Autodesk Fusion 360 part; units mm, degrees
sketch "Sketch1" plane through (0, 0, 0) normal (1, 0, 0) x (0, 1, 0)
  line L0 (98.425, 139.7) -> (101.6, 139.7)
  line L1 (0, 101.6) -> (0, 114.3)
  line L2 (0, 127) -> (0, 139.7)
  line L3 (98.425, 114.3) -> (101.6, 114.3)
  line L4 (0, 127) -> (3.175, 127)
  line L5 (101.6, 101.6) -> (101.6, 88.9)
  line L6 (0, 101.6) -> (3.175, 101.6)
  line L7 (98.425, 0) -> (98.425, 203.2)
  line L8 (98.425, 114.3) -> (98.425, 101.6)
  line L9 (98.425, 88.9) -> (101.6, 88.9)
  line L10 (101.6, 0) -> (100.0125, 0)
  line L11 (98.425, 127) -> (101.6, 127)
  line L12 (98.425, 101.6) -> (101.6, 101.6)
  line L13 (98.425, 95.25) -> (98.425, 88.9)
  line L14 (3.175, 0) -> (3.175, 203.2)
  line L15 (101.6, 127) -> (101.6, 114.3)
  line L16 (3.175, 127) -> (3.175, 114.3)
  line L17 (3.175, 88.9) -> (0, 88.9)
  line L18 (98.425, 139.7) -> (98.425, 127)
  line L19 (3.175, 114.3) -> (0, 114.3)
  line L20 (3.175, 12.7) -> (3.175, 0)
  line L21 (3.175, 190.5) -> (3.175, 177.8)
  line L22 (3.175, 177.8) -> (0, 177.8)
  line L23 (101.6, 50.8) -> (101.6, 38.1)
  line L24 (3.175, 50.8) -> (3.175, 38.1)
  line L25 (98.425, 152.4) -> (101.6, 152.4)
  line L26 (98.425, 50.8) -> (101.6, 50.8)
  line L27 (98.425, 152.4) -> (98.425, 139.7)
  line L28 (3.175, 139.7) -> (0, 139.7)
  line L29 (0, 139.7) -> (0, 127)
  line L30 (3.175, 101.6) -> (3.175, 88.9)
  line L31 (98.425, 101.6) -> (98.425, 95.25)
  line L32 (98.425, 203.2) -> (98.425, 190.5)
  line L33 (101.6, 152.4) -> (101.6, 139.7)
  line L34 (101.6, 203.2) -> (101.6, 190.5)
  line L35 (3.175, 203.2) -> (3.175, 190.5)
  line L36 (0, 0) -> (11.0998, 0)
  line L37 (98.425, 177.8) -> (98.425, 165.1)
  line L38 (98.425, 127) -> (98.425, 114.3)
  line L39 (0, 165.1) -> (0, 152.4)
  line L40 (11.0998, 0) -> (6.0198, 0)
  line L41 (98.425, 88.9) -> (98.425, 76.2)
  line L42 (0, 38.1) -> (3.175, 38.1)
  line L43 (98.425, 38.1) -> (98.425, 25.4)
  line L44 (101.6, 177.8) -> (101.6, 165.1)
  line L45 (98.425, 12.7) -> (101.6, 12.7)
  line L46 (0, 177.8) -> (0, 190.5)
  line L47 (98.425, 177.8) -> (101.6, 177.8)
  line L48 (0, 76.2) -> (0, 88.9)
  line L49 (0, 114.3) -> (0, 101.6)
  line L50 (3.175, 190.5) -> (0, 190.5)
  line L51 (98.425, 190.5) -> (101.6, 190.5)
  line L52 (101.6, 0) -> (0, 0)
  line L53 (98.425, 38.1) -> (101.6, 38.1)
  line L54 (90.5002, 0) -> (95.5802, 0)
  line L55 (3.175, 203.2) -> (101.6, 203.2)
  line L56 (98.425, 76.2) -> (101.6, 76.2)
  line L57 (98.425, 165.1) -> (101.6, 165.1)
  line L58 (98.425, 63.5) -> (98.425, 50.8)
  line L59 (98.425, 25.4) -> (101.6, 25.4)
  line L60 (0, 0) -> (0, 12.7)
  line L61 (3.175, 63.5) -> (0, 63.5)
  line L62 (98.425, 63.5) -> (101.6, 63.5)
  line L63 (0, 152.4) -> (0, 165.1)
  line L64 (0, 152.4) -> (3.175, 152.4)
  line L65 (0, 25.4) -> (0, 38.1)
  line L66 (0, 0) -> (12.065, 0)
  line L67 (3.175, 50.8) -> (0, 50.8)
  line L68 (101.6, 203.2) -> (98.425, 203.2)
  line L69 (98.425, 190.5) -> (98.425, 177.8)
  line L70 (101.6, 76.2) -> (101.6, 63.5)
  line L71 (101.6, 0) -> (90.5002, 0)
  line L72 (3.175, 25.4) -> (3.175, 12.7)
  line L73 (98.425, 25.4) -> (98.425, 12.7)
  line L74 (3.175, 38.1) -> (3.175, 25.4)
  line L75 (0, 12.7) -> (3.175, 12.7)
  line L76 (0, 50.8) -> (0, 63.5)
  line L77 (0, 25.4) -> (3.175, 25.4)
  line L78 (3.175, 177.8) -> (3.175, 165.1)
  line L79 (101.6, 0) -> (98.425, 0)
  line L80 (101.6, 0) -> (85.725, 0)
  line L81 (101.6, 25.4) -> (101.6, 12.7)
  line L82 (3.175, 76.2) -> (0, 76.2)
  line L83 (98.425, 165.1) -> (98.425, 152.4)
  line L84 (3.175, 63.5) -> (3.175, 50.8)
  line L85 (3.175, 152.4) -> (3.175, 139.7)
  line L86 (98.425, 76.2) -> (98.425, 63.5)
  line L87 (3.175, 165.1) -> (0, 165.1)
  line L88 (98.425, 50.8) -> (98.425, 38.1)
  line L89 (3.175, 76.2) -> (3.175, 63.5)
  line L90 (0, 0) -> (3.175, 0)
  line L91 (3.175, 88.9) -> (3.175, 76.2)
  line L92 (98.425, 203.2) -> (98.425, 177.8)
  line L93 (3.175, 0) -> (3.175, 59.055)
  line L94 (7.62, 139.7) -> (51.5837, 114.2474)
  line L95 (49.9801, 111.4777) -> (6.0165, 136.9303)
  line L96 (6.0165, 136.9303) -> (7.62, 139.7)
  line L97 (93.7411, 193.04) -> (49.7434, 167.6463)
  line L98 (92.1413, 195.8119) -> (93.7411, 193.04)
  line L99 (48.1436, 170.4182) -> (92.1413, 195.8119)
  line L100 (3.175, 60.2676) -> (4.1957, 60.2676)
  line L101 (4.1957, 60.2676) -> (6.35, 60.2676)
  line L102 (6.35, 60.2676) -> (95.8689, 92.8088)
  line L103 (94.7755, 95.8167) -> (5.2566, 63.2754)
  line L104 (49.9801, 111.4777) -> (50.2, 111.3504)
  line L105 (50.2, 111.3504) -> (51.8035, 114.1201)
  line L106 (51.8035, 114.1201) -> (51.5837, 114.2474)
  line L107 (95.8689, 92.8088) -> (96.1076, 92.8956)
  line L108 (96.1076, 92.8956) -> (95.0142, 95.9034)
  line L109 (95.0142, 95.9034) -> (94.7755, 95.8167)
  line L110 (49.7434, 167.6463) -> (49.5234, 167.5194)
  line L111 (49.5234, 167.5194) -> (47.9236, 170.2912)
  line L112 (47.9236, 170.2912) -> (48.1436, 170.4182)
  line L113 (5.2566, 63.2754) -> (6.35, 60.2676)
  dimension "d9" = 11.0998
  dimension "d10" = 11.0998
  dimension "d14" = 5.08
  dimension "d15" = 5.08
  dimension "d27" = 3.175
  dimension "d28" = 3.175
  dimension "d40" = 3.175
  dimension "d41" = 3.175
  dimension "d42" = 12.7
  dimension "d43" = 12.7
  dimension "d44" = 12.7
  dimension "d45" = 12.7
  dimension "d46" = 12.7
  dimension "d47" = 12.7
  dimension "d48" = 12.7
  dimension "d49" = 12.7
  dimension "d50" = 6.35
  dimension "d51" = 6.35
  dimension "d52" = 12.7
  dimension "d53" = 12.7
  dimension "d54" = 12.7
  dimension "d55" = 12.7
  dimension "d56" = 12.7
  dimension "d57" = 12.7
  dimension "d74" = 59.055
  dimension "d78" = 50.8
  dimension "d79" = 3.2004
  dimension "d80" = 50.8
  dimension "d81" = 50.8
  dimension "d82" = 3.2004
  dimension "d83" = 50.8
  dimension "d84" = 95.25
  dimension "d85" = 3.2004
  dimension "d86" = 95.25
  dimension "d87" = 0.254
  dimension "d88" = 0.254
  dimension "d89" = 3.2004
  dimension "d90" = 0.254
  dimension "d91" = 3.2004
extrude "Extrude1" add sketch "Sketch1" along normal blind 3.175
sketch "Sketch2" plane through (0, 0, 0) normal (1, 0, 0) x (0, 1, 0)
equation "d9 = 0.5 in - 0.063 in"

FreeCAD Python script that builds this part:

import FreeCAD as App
import Part
import Sketcher
Q = App.Units.Quantity


def add_polygon(sketch, points):
    """Adds a closed chain of lines whose ends are joined by coincident constraints."""
    first, n = sketch.GeometryCount, len(points)
    for a, b in zip(points, points[1:] + points[:1]):
        sketch.addGeometry(Part.LineSegment(App.Vector(*a, 0), App.Vector(*b, 0)), False)
    for i in range(n):
        sketch.addConstraint(Sketcher.Constraint("Coincident", first + i, 2, first + (i + 1) % n, 1))

doc = App.newDocument("Part")
params = doc.addObject("Spreadsheet::Sheet", "Params")
for row, (alias, value) in enumerate([
    ("sketch1_length", "2 in"),
    ("sketch1_length2", "2 in"),
    ("sketch1_length3", "2 in"),
    ("sketch1_length4", "2 in"),
    ("sketch1_height", "0.5 in"),
    ("pad1_length", "0.125 in"),
], start=1):
    params.set(f"A{row}", alias)
    params.set(f"B{row}", "=" + value)
    params.setAlias(f"B{row}", alias)

body = doc.addObject("PartDesign::Body", "Body")

# Sketch on YZ plane
sketch1 = body.newObject("Sketcher::SketchObject", "Sketch")
sketch1.AttachmentSupport = (doc.getObject("YZ_Plane"), [""])
sketch1.MapMode = "FlatFace"
add_polygon(sketch1, [(101.6, 152.4), (98.425, 152.4), (98.425, 165.1), (101.6, 165.1), (101.6, 177.8), (98.425, 177.8), (98.425, 190.5), (101.6, 190.5), (101.6, 203.2), (3.175, 203.2), (3.175, 190.5), (0, 190.5), (0, 177.8), (3.175, 177.8), (3.175, 165.1), (0, 165.1), (0, 152.4), (3.175, 152.4), (3.175, 139.7), (0, 139.7), (0, 127), (3.175, 127), (3.175, 114.3), (0, 114.3), (0, 101.6), (3.175, 101.6), (3.175, 88.9), (0, 88.9), (0, 76.2), (3.175, 76.2), (3.175, 63.5), (0, 63.5), (0, 50.8), (3.175, 50.8), (3.175, 38.1), (0, 38.1), (0, 25.4), (3.175, 25.4), (3.175, 12.7), (0, 12.7), (0, 0), (98.425, 0), (98.425, 12.7), (101.6, 12.7), (101.6, 25.4), (98.425, 25.4), (98.425, 38.1), (101.6, 38.1), (101.6, 50.8), (98.425, 50.8), (98.425, 63.5), (101.6, 63.5), (101.6, 76.2), (98.425, 76.2), (98.425, 88.9), (101.6, 88.9), (101.6, 101.6), (98.425, 101.6), (98.425, 114.3), (101.6, 114.3), (101.6, 127), (98.425, 127), (98.425, 139.7), (101.6, 139.7)])  # lines 0-63
add_polygon(sketch1, [(95.8689, 92.8088), (6.35, 60.2676), (5.2566, 63.2754), (94.7755, 95.8167), (95.0142, 95.9034), (96.1076, 92.8956)])  # lines 64-69
add_polygon(sketch1, [(6.0165, 136.9303), (7.62, 139.7), (51.5837, 114.2474), (51.8035, 114.1201), (50.2, 111.3504), (49.9801, 111.4777)])  # lines 70-75
add_polygon(sketch1, [(92.1413, 195.8119), (93.7411, 193.04), (49.7434, 167.6463), (49.5234, 167.5194), (47.9236, 170.2912), (48.1436, 170.4182)])  # lines 76-81
sketch1.addConstraint(Sketcher.Constraint("Horizontal", 0))
sketch1.addConstraint(Sketcher.Constraint("Vertical", 1))
sketch1.addConstraint(Sketcher.Constraint("Horizontal", 2))
sketch1.addConstraint(Sketcher.Constraint("Vertical", 3))
sketch1.addConstraint(Sketcher.Constraint("Horizontal", 4))
sketch1.addConstraint(Sketcher.Constraint("Vertical", 5))
sketch1.addConstraint(Sketcher.Constraint("Horizontal", 6))
sketch1.addConstraint(Sketcher.Constraint("Vertical", 7))
sketch1.addConstraint(Sketcher.Constraint("Horizontal", 8))
sketch1.addConstraint(Sketcher.Constraint("Vertical", 9))
sketch1.addConstraint(Sketcher.Constraint("Horizontal", 10))
sketch1.addConstraint(Sketcher.Constraint("Vertical", 11))
sketch1.addConstraint(Sketcher.Constraint("Horizontal", 12))
sketch1.addConstraint(Sketcher.Constraint("Vertical", 13))
sketch1.addConstraint(Sketcher.Constraint("Horizontal", 14))
sketch1.addConstraint(Sketcher.Constraint("Vertical", 15))
sketch1.addConstraint(Sketcher.Constraint("Horizontal", 16))
sketch1.addConstraint(Sketcher.Constraint("Vertical", 17))
sketch1.addConstraint(Sketcher.Constraint("Horizontal", 18))
sketch1.addConstraint(Sketcher.Constraint("Vertical", 19))
sketch1.addConstraint(Sketcher.Constraint("Horizontal", 20))
sketch1.addConstraint(Sketcher.Constraint("Vertical", 21))
sketch1.addConstraint(Sketcher.Constraint("Horizontal", 22))
sketch1.addConstraint(Sketcher.Constraint("Vertical", 23))
sketch1.addConstraint(Sketcher.Constraint("Horizontal", 24))
sketch1.addConstraint(Sketcher.Constraint("Vertical", 25))
sketch1.addConstraint(Sketcher.Constraint("Horizontal", 26))
sketch1.addConstraint(Sketcher.Constraint("Vertical", 27))
sketch1.addConstraint(Sketcher.Constraint("Horizontal", 28))
sketch1.addConstraint(Sketcher.Constraint("Vertical", 29))
sketch1.addConstraint(Sketcher.Constraint("Horizontal", 30))
sketch1.addConstraint(Sketcher.Constraint("Vertical", 31))
sketch1.addConstraint(Sketcher.Constraint("Horizontal", 32))
sketch1.addConstraint(Sketcher.Constraint("Vertical", 33))
sketch1.addConstraint(Sketcher.Constraint("Horizontal", 34))
sketch1.addConstraint(Sketcher.Constraint("Vertical", 35))
sketch1.addConstraint(Sketcher.Constraint("Horizontal", 36))
sketch1.addConstraint(Sketcher.Constraint("Vertical", 37))
sketch1.addConstraint(Sketcher.Constraint("Horizontal", 38))
sketch1.addConstraint(Sketcher.Constraint("Vertical", 39))
sketch1.addConstraint(Sketcher.Constraint("Horizontal", 40))
sketch1.addConstraint(Sketcher.Constraint("Vertical", 41))
sketch1.addConstraint(Sketcher.Constraint("Horizontal", 42))
sketch1.addConstraint(Sketcher.Constraint("Vertical", 43))
sketch1.addConstraint(Sketcher.Constraint("Horizontal", 44))
sketch1.addConstraint(Sketcher.Constraint("Vertical", 45))
sketch1.addConstraint(Sketcher.Constraint("Horizontal", 46))
sketch1.addConstraint(Sketcher.Constraint("Vertical", 47))
sketch1.addConstraint(Sketcher.Constraint("Horizontal", 48))
sketch1.addConstraint(Sketcher.Constraint("Vertical", 49))
sketch1.addConstraint(Sketcher.Constraint("Horizontal", 50))
sketch1.addConstraint(Sketcher.Constraint("Vertical", 51))
sketch1.addConstraint(Sketcher.Constraint("Horizontal", 52))
sketch1.addConstraint(Sketcher.Constraint("Vertical", 53))
sketch1.addConstraint(Sketcher.Constraint("Horizontal", 54))
sketch1.addConstraint(Sketcher.Constraint("Vertical", 55))
sketch1.addConstraint(Sketcher.Constraint("Horizontal", 56))
sketch1.addConstraint(Sketcher.Constraint("Vertical", 57))
sketch1.addConstraint(Sketcher.Constraint("Horizontal", 58))
sketch1.addConstraint(Sketcher.Constraint("Vertical", 59))
sketch1.addConstraint(Sketcher.Constraint("Horizontal", 60))
sketch1.addConstraint(Sketcher.Constraint("Vertical", 61))
sketch1.addConstraint(Sketcher.Constraint("Horizontal", 62))
sketch1.addConstraint(Sketcher.Constraint("Vertical", 63))
sketch1.addConstraint(Sketcher.Constraint("Coincident", 39, 2, -1, 1))
sketch1.addConstraint(Sketcher.Constraint("PointOnObject", 10, 2, -2))
sketch1.addConstraint(Sketcher.Constraint("PointOnObject", 14, 2, -2))
sketch1.addConstraint(Sketcher.Constraint("PointOnObject", 18, 2, -2))
sketch1.addConstraint(Sketcher.Constraint("PointOnObject", 22, 2, -2))
sketch1.addConstraint(Sketcher.Constraint("PointOnObject", 26, 2, -2))
sketch1.addConstraint(Sketcher.Constraint("PointOnObject", 30, 2, -2))
sketch1.addConstraint(Sketcher.Constraint("PointOnObject", 34, 2, -2))
sketch1.addConstraint(Sketcher.Constraint("Distance", 71, Q("2 in")))
sketch1.addConstraint(Sketcher.Constraint("Distance", 75, Q("2 in")))
sketch1.addConstraint(Sketcher.Constraint("Distance", 77, Q("2 in")))
sketch1.addConstraint(Sketcher.Constraint("Distance", 81, Q("2 in")))
sketch1.addConstraint(Sketcher.Constraint("DistanceY", 1, 1, 1, 2, Q("0.5 in")))
sketch1.addConstraint(Sketcher.Constraint("DistanceY", 3, 1, 3, 2, Q("0.5 in")))
sketch1.addConstraint(Sketcher.Constraint("DistanceY", 5, 1, 5, 2, Q("0.5 in")))
sketch1.addConstraint(Sketcher.Constraint("DistanceY", 7, 1, 7, 2, Q("0.5 in")))
sketch1.addConstraint(Sketcher.Constraint("DistanceY", 9, 2, 9, 1, Q("0.5 in")))
sketch1.addConstraint(Sketcher.Constraint("DistanceY", 11, 2, 11, 1, Q("0.5 in")))
sketch1.addConstraint(Sketcher.Constraint("DistanceY", 13, 2, 13, 1, Q("0.5 in")))
sketch1.addConstraint(Sketcher.Constraint("DistanceY", 15, 2, 15, 1, Q("0.5 in")))
sketch1.addConstraint(Sketcher.Constraint("DistanceY", 17, 2, 17, 1, Q("0.5 in")))
sketch1.addConstraint(Sketcher.Constraint("DistanceY", 19, 2, 19, 1, Q("0.5 in")))
sketch1.addConstraint(Sketcher.Constraint("DistanceY", 21, 2, 21, 1, Q("0.5 in")))
sketch1.addConstraint(Sketcher.Constraint("DistanceY", 23, 2, 23, 1, Q("0.5 in")))
sketch1.addConstraint(Sketcher.Constraint("DistanceY", 25, 2, 25, 1, Q("0.5 in")))
sketch1.addConstraint(Sketcher.Constraint("DistanceY", 27, 2, 27, 1, Q("0.5 in")))
sketch1.addConstraint(Sketcher.Constraint("DistanceY", 29, 2, 29, 1, Q("0.5 in")))
sketch1.addConstraint(Sketcher.Constraint("DistanceY", 31, 2, 31, 1, Q("0.5 in")))
sketch1.addConstraint(Sketcher.Constraint("DistanceY", 33, 2, 33, 1, Q("0.5 in")))
sketch1.addConstraint(Sketcher.Constraint("DistanceY", 35, 2, 35, 1, Q("0.5 in")))
sketch1.addConstraint(Sketcher.Constraint("DistanceY", 37, 2, 37, 1, Q("0.5 in")))
sketch1.addConstraint(Sketcher.Constraint("DistanceY", 39, 2, 39, 1, Q("0.5 in")))
sketch1.addConstraint(Sketcher.Constraint("DistanceY", 41, 1, 41, 2, Q("0.5 in")))
sketch1.addConstraint(Sketcher.Constraint("DistanceY", 43, 1, 43, 2, Q("0.5 in")))
sketch1.addConstraint(Sketcher.Constraint("DistanceY", 45, 1, 45, 2, Q("0.5 in")))
sketch1.addConstraint(Sketcher.Constraint("DistanceY", 47, 1, 47, 2, Q("0.5 in")))
sketch1.addConstraint(Sketcher.Constraint("DistanceY", 49, 1, 49, 2, Q("0.5 in")))
sketch1.addConstraint(Sketcher.Constraint("DistanceY", 51, 1, 51, 2, Q("0.5 in")))
sketch1.addConstraint(Sketcher.Constraint("DistanceY", 53, 1, 53, 2, Q("0.5 in")))
sketch1.addConstraint(Sketcher.Constraint("DistanceY", 55, 1, 55, 2, Q("0.5 in")))
sketch1.addConstraint(Sketcher.Constraint("DistanceY", 57, 1, 57, 2, Q("0.5 in")))
sketch1.addConstraint(Sketcher.Constraint("DistanceY", 59, 1, 59, 2, Q("0.5 in")))
sketch1.addConstraint(Sketcher.Constraint("DistanceY", 61, 1, 61, 2, Q("0.5 in")))
sketch1.addConstraint(Sketcher.Constraint("Distance", 64, Q("3.75 in")))
sketch1.addConstraint(Sketcher.Constraint("Distance", 66, Q("3.75 in")))
sketch1.addConstraint(Sketcher.Constraint("Distance", 67, Q("0.01 in")))
sketch1.addConstraint(Sketcher.Constraint("Distance", 69, Q("0.01 in")))
sketch1.addConstraint(Sketcher.Constraint("Distance", 72, Q("0.01 in")))
sketch1.addConstraint(Sketcher.Constraint("Distance", 74, Q("0.01 in")))
sketch1.addConstraint(Sketcher.Constraint("Distance", 78, Q("0.01 in")))
sketch1.addConstraint(Sketcher.Constraint("Distance", 80, Q("0.01 in")))
sketch1.addConstraint(Sketcher.Constraint("DistanceX", 0, 2, 0, 1, Q("0.125 in")))
sketch1.addConstraint(Sketcher.Constraint("DistanceX", 2, 1, 2, 2, Q("0.125 in")))
sketch1.addConstraint(Sketcher.Constraint("DistanceX", 4, 2, 4, 1, Q("0.125 in")))
sketch1.addConstraint(Sketcher.Constraint("DistanceX", 6, 1, 6, 2, Q("0.125 in")))
sketch1.addConstraint(Sketcher.Constraint("DistanceX", 10, 2, 10, 1, Q("0.125 in")))
sketch1.addConstraint(Sketcher.Constraint("DistanceX", 12, 1, 12, 2, Q("0.125 in")))
sketch1.addConstraint(Sketcher.Constraint("DistanceX", 16, 1, 16, 2, Q("0.125 in")))
sketch1.addConstraint(Sketcher.Constraint("DistanceX", 20, 1, 20, 2, Q("0.125 in")))
sketch1.addConstraint(Sketcher.Constraint("DistanceX", 24, 1, 24, 2, Q("0.125 in")))
sketch1.addConstraint(Sketcher.Constraint("DistanceX", 28, 1, 28, 2, Q("0.125 in")))
sketch1.addConstraint(Sketcher.Constraint("DistanceX", 32, 1, 32, 2, Q("0.125 in")))
sketch1.addConstraint(Sketcher.Constraint("DistanceX", 36, 1, 36, 2, Q("0.125 in")))
sketch1.addConstraint(Sketcher.Constraint("DistanceX", 42, 1, 42, 2, Q("0.125 in")))
sketch1.addConstraint(Sketcher.Constraint("DistanceX", 44, 2, 44, 1, Q("0.125 in")))
sketch1.addConstraint(Sketcher.Constraint("DistanceX", 46, 1, 46, 2, Q("0.125 in")))
sketch1.addConstraint(Sketcher.Constraint("DistanceX", 48, 2, 48, 1, Q("0.125 in")))
sketch1.addConstraint(Sketcher.Constraint("DistanceX", 50, 1, 50, 2, Q("0.125 in")))
sketch1.addConstraint(Sketcher.Constraint("DistanceX", 52, 2, 52, 1, Q("0.125 in")))
sketch1.addConstraint(Sketcher.Constraint("DistanceX", 54, 1, 54, 2, Q("0.125 in")))
sketch1.addConstraint(Sketcher.Constraint("DistanceX", 56, 2, 56, 1, Q("0.125 in")))
sketch1.addConstraint(Sketcher.Constraint("DistanceX", 58, 1, 58, 2, Q("0.125 in")))
sketch1.addConstraint(Sketcher.Constraint("DistanceX", 60, 2, 60, 1, Q("0.125 in")))
sketch1.addConstraint(Sketcher.Constraint("DistanceX", 62, 1, 62, 2, Q("0.125 in")))
sketch1.addConstraint(Sketcher.Constraint("DistanceX", -1, 1, 64, 2, Q("0.25 in")))
sketch1.addConstraint(Sketcher.Constraint("Distance", 65, Q("0.126 in")))
sketch1.addConstraint(Sketcher.Constraint("Distance", 68, Q("0.126 in")))
sketch1.addConstraint(Sketcher.Constraint("Distance", 70, Q("0.126 in")))
sketch1.addConstraint(Sketcher.Constraint("Distance", 73, Q("0.126 in")))
sketch1.addConstraint(Sketcher.Constraint("Distance", 76, Q("0.126 in")))
sketch1.addConstraint(Sketcher.Constraint("Distance", 79, Q("0.126 in")))
sketch1.addConstraint(Sketcher.Constraint("DistanceX", -1, 1, 2, 2, Q("4 in")))
sketch1.addConstraint(Sketcher.Constraint("DistanceX", -1, 1, 70, 2, Q("0.3 in")))
sketch1.addConstraint(Sketcher.Constraint("DistanceY", -1, 1, 70, 2, Q("5.5 in")))
sketch1.addConstraint(Sketcher.Constraint("DistanceY", -1, 1, 76, 2, Q("7.6 in")))
sketch1.addConstraint(Sketcher.Constraint("DistanceY", -1, 1, 66, 2, Q("3.7723 in")))
sketch1.addConstraint(Sketcher.Constraint("DistanceY", -1, 1, 68, 2, Q("3.6573 in")))
sketch1.addConstraint(Sketcher.Constraint("DistanceY", -1, 1, 69, 2, Q("3.6539 in")))
sketch1.addConstraint(Sketcher.Constraint("DistanceX", -1, 1, 72, 2, Q("2.0395 in")))
sketch1.addConstraint(Sketcher.Constraint("DistanceX", -1, 1, 76, 2, Q("3.6906 in")))
sketch1.addConstraint(Sketcher.Constraint("DistanceX", -1, 1, 77, 2, Q("1.9584 in")))
sketch1.addConstraint(Sketcher.Constraint("DistanceX", -1, 1, 81, 2, Q("3.6276 in")))
sketch1.addConstraint(Sketcher.Constraint("DistanceY", -1, 1, 64, 2, 60.2676))
sketch1.addConstraint(Sketcher.Constraint("DistanceX", -1, 1, 65, 2, 5.2566))
sketch1.addConstraint(Sketcher.Constraint("DistanceX", -1, 1, 71, 2, 51.5837))
sketch1.addConstraint(Sketcher.Constraint("DistanceX", -1, 1, 73, 2, 50.2))
sketch1.addConstraint(Sketcher.Constraint("DistanceX", -1, 1, 74, 2, 49.98))
sketch1.addConstraint(Sketcher.Constraint("DistanceX", -1, 1, 78, 2, 49.5234))
sketch1.addConstraint(Sketcher.Constraint("DistanceX", -1, 1, 80, 2, 48.1436))
sketch1.setExpression("Constraints[154]", "Params.sketch1_length")
sketch1.setExpression("Constraints[155]", "Params.sketch1_length2")
sketch1.setExpression("Constraints[156]", "Params.sketch1_length3")
sketch1.setExpression("Constraints[157]", "Params.sketch1_length4")
sketch1.setExpression("Constraints[158]", "Params.sketch1_height")
pad1 = body.newObject("PartDesign::Pad", "Pad")
pad1.Profile = sketch1
pad1.setExpression("Length", "Params.pad1_length")

doc.recompute()
